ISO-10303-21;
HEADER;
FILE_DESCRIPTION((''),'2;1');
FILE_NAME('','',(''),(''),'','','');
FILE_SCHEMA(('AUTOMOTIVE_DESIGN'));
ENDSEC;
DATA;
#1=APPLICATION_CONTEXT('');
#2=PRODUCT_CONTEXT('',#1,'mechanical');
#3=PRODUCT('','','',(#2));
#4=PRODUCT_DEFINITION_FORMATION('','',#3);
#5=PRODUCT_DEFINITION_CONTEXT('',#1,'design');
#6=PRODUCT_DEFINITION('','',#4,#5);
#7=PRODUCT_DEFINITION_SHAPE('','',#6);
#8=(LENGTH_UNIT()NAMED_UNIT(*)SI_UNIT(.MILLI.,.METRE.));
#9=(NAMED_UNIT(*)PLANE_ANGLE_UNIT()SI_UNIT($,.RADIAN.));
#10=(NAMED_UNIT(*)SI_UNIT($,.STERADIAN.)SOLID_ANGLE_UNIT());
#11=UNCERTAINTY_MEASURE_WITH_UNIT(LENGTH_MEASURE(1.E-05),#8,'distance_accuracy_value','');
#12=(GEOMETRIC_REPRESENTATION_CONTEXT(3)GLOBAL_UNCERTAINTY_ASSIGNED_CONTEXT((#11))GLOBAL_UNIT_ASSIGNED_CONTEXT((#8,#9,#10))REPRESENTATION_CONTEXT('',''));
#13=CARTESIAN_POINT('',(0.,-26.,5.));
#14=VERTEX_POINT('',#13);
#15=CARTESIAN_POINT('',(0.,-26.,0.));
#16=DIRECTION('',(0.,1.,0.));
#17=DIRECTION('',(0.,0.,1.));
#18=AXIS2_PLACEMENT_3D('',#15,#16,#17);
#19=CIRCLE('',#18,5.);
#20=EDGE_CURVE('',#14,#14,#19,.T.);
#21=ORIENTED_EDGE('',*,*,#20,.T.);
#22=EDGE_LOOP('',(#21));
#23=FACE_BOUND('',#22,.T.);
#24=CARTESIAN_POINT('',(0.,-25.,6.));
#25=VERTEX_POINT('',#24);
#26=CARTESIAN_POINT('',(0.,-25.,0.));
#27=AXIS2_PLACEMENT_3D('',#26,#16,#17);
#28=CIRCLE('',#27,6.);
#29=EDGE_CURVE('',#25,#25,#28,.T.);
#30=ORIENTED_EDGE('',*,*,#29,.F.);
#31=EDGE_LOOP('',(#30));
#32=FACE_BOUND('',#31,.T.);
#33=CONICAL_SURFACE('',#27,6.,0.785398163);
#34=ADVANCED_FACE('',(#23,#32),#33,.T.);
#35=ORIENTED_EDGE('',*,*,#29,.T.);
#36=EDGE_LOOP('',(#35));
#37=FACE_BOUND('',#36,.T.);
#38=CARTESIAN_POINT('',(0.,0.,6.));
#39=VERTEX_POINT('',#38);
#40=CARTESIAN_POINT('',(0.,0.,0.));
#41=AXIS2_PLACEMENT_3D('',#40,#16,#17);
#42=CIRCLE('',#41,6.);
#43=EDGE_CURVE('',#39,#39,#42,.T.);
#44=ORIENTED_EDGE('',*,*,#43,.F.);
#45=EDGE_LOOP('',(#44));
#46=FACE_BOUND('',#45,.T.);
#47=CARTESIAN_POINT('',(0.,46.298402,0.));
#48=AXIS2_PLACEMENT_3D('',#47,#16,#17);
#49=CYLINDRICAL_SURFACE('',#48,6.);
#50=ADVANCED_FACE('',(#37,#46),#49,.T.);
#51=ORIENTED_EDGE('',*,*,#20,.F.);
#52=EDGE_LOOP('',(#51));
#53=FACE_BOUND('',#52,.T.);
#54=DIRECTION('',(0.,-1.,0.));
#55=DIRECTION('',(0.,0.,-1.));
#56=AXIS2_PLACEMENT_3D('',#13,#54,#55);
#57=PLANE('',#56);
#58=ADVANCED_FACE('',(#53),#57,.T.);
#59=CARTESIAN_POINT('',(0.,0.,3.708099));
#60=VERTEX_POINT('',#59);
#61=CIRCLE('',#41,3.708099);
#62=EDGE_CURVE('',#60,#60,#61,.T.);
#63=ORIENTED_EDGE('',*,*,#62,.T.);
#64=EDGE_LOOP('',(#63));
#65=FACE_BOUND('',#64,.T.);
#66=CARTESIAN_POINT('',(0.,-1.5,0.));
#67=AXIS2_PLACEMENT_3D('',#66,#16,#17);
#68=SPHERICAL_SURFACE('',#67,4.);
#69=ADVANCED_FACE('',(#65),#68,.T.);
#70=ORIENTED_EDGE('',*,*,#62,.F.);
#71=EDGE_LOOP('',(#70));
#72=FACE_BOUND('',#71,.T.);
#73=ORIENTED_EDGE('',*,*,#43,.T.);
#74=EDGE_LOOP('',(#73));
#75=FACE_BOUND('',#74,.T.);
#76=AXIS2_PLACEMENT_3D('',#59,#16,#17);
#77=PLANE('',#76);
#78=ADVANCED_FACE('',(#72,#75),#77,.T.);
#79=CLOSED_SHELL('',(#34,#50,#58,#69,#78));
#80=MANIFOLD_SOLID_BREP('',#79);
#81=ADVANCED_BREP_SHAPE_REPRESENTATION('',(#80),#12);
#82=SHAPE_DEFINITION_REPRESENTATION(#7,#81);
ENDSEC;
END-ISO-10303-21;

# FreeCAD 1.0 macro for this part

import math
import FreeCAD as App
import Part
import Sketcher
Q = App.Units.Quantity

doc = App.newDocument("Part")
body = doc.addObject("PartDesign::Body", "Body")

sketch1 = body.newObject("Sketcher::SketchObject", "Sketch")
sketch1.AttachmentSupport = (doc.getObject("YZ_Plane"), [""])
sketch1.MapMode = "FlatFace"
sketch1.addGeometry([
    Part.LineSegment(App.Vector(0, 3.7, 0), App.Vector(0, 6, 0)),
    Part.LineSegment(App.Vector(0, 6, 0), App.Vector(-25, 6, 0)),
    Part.LineSegment(App.Vector(-25, 6, 0), App.Vector(-26, 5, 0)),
    Part.LineSegment(App.Vector(-26, 5, 0), App.Vector(-26, 0, 0)),
    Part.LineSegment(App.Vector(-26, 0, 0), App.Vector(2.5, 0, 0)),
    Part.ArcOfCircle(Part.Circle(App.Vector(-1.5, 0, 0), App.Vector(0, 0, 1), 4), math.radians(0), math.radians(68)),
], False)
sketch1.addConstraint([
    Sketcher.Constraint("Coincident", 0, 2, 1, 1),
    Sketcher.Constraint("Coincident", 1, 2, 2, 1),
    Sketcher.Constraint("Coincident", 2, 2, 3, 1),
    Sketcher.Constraint("Coincident", 3, 2, 4, 1),
    Sketcher.Constraint("Coincident", 4, 2, 5, 1),
    Sketcher.Constraint("Coincident", 5, 2, 0, 1),
    Sketcher.Constraint("Vertical", 0),
    Sketcher.Constraint("Horizontal", 1),
    Sketcher.Constraint("Vertical", 3),
    Sketcher.Constraint("Horizontal", 4),
    Sketcher.Constraint("PointOnObject", 5, 3, -1),
    Sketcher.Constraint("PointOnObject", 0, 2, -2),
    Sketcher.Constraint("PointOnObject", 3, 2, -1),
    Sketcher.Constraint("Radius", 5, 4.0),
    Sketcher.Constraint("DistanceX", 1, 2, 1, 1, 25.0),
    Sketcher.Constraint("DistanceY", 3, 2, 3, 1, 5.0),
    Sketcher.Constraint("Angle", 2, Q("-135 deg")),
    Sketcher.Constraint("DistanceX", 4, 1, 4, 2, 28.5),
    Sketcher.Constraint("DistanceY", -1, 1, 0, 2, 6.0),
])
revolution = body.newObject("PartDesign::Revolution", "Revolution")
revolution.Profile = sketch1
revolution.ReferenceAxis = (sketch1, ["H_Axis"])
revolution.Angle = 360

doc.recompute()
